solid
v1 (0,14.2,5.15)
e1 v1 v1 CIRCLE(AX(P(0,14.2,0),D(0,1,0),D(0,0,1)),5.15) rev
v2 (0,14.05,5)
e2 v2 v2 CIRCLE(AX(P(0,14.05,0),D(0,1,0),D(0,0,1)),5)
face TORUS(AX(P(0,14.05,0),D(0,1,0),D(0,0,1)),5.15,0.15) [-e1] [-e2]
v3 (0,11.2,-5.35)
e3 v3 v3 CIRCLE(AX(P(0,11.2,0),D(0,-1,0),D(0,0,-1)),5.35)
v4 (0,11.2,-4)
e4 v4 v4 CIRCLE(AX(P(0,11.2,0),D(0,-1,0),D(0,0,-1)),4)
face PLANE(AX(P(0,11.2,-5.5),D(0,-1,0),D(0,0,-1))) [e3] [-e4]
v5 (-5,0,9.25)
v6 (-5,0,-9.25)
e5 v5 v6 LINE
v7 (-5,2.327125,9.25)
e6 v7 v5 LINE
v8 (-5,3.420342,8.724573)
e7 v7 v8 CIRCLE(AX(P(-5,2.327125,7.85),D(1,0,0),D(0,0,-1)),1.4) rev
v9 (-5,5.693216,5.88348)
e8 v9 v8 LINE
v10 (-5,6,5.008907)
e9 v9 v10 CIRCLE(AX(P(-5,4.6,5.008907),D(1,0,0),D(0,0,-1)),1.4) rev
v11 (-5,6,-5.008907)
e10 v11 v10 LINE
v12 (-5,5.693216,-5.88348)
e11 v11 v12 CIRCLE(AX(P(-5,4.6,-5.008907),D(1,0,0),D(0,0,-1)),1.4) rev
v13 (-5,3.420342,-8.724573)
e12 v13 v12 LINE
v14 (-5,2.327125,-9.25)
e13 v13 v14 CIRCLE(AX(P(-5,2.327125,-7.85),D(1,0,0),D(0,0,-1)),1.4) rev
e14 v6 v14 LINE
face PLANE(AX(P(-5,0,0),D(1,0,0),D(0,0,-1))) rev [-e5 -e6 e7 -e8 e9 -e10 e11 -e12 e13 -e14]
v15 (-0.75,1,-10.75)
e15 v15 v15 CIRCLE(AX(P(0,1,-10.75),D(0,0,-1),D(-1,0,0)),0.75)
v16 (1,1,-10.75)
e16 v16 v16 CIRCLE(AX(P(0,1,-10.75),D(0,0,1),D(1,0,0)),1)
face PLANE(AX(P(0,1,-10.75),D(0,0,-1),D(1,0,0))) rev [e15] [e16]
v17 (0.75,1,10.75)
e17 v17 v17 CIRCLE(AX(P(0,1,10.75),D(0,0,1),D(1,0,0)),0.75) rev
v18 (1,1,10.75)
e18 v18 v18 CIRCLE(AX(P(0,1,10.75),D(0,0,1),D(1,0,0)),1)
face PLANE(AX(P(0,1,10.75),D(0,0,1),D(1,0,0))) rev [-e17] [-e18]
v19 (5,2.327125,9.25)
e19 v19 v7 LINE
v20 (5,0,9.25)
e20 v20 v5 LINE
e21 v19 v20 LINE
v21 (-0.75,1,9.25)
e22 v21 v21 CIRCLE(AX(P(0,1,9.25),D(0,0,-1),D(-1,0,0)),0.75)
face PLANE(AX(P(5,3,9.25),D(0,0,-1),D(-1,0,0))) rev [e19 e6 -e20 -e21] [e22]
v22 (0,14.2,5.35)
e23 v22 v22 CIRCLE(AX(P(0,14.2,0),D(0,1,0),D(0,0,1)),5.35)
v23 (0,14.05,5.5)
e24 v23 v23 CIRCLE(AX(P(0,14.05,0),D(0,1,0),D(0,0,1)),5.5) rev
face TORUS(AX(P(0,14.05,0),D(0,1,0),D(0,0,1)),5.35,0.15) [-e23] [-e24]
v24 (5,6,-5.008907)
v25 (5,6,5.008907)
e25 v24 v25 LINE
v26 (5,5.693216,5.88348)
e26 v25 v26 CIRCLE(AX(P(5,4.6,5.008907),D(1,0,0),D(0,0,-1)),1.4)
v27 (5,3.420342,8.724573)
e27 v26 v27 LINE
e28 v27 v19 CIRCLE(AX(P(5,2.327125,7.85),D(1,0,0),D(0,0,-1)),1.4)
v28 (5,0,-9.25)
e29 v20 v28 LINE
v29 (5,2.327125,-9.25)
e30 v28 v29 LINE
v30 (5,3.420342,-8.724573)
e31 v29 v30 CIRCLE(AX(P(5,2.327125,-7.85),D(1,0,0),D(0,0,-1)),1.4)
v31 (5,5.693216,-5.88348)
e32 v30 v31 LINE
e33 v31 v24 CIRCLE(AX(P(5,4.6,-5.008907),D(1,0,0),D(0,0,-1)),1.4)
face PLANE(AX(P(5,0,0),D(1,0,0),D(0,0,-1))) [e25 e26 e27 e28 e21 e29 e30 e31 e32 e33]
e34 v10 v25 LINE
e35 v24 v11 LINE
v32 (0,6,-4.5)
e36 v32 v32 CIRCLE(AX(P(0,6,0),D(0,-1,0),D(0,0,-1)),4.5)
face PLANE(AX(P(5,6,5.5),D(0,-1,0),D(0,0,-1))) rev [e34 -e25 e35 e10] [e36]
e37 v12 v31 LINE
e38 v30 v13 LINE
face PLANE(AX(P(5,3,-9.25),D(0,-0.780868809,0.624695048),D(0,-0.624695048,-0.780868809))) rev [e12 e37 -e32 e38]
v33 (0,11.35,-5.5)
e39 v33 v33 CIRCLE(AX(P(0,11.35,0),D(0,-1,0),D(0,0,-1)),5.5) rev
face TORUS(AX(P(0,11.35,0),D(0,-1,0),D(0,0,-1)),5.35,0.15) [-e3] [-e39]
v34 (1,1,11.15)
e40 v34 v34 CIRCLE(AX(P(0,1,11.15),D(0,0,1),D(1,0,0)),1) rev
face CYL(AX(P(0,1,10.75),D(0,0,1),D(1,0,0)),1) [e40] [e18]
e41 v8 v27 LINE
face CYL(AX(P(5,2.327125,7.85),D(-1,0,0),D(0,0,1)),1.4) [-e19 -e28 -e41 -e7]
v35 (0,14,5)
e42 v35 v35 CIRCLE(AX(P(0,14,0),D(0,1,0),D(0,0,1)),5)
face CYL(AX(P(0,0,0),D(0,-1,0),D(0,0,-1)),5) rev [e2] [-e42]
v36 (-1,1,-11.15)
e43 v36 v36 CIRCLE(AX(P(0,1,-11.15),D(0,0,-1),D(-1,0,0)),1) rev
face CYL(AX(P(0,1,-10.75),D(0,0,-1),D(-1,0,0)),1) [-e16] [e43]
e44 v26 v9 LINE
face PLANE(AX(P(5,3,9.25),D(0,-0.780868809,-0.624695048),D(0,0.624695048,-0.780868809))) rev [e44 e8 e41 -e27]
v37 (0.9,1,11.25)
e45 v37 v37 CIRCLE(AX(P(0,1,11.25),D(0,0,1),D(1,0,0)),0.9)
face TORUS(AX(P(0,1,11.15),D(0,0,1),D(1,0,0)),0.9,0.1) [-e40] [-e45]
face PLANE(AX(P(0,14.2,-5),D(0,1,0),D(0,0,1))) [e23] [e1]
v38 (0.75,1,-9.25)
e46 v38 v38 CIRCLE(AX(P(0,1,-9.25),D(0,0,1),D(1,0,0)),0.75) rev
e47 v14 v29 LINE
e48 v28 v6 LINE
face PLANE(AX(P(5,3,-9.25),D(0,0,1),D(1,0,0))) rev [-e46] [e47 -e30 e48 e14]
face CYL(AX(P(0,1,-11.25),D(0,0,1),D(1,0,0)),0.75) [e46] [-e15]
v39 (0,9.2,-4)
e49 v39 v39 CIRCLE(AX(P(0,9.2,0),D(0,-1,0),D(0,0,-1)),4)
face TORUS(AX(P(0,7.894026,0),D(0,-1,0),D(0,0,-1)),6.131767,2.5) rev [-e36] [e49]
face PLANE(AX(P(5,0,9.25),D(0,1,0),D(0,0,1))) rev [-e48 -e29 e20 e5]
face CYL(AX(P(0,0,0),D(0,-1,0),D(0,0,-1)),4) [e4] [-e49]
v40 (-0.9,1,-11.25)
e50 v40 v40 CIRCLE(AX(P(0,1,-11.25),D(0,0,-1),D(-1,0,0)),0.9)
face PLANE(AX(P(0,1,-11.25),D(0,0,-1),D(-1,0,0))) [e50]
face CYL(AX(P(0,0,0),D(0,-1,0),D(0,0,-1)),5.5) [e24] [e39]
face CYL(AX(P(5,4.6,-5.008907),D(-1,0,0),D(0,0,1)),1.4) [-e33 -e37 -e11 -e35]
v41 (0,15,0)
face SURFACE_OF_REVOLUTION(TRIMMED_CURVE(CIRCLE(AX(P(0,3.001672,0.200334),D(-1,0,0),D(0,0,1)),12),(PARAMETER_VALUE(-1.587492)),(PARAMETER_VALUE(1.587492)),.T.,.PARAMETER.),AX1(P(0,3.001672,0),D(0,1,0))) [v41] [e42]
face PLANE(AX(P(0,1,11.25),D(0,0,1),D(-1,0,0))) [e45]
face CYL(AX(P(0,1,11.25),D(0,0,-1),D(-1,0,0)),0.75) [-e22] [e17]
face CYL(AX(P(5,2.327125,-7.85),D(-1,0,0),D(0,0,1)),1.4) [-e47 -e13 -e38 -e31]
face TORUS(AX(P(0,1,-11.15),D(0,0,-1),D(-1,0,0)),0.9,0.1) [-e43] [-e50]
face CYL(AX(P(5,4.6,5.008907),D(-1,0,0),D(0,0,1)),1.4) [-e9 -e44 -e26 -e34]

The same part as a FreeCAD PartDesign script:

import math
import FreeCAD as App
import Part
import Sketcher
from FreeCAD import Vector
Q = App.Units.Quantity


def edges_at(feature, points):
    """Names of the edges that pass closest to the given points."""
    edges = feature.Shape.Edges
    near = lambda p: min(range(len(edges)), key=lambda i: edges[i].distToShape(Part.Vertex(*p))[0])
    return sorted({f"Edge{near(p) + 1}" for p in points})


def add_polygon(sketch, points):
    """Adds a closed chain of lines whose ends are joined by coincident constraints."""
    first, n = sketch.GeometryCount, len(points)
    for a, b in zip(points, points[1:] + points[:1]):
        sketch.addGeometry(Part.LineSegment(App.Vector(*a, 0), App.Vector(*b, 0)), False)
    for i in range(n):
        sketch.addConstraint(Sketcher.Constraint("Coincident", first + i, 2, first + (i + 1) % n, 1))

doc = App.newDocument("Part")
params = doc.addObject("Spreadsheet::Sheet", "Params")
for row, (alias, value) in enumerate([
    ("sketch1_width", "3 mm"),
    ("sketch1_height", "11 mm"),
    ("sketch1_height2", "18.5 mm"),
    ("pad1_length", "10 mm"),
    ("sketch2_radius", "2.5 mm"),
    ("sketch2_width", "8 mm"),
    ("sketch2_width2", "2 mm"),
    ("sketch2_width3", "3 mm"),
    ("sketch2_height", "5 mm"),
    ("revolution_angle", "360 deg"),
    ("sketch3_radius", "12 mm"),
    ("sketch3_width", "1 mm"),
    ("sketch3_height", "5 mm"),
    ("revolution2_angle", "360 deg"),
    ("fillet_radius", "0.15 mm"),
    ("fillet2_radius", "1.4 mm"),
    ("sketch4_diameter", "1.5 mm"),
    ("pad2_length", "2 mm"),
    ("sketch5_diameter", "2 mm"),
    ("pad3_length", "0.5 mm"),
    ("fillet3_radius", "0.1 mm"),
    ("fillet4_radius", "0.1 mm"),
], start=1):
    params.set(f"A{row}", alias)
    params.set(f"B{row}", "=" + value)
    params.setAlias(f"B{row}", alias)

body = doc.addObject("PartDesign::Body", "Body")

sketch1 = body.newObject("Sketcher::SketchObject", "Sketch")
sketch1.AttachmentSupport = (doc.getObject("YZ_Plane"), [""])
sketch1.MapMode = "FlatFace"
add_polygon(sketch1, [(3, -9.25), (6, -5.5), (6, 5.5), (3, 9.25), (0, 9.25), (0, -9.25)])
sketch1.addConstraint(Sketcher.Constraint("Vertical", 1))
sketch1.addConstraint(Sketcher.Constraint("Horizontal", 3))
sketch1.addConstraint(Sketcher.Constraint("Vertical", 4))
sketch1.addConstraint(Sketcher.Constraint("Horizontal", 5))
sketch1.addConstraint(Sketcher.Constraint("Symmetric", 3, 2, 4, 2, -1, 1))
sketch1.addConstraint(Sketcher.Constraint("Vertical", 2, 2, 5, 2))
sketch1.addConstraint(Sketcher.Constraint("Equal", 0, 2))
sketch1.addConstraint(Sketcher.Constraint("DistanceX", 3, 2, 3, 1, Q("3 mm")))
sketch1.addConstraint(Sketcher.Constraint("DistanceY", 1, 1, 1, 2, Q("11 mm")))
sketch1.addConstraint(Sketcher.Constraint("DistanceY", 4, 2, 4, 1, Q("18.5 mm")))
sketch1.addConstraint(Sketcher.Constraint("DistanceX", -1, 1, 0, 2, Q("6 mm")))
sketch1.setExpression("Constraints[13]", "Params.sketch1_width")
sketch1.setExpression("Constraints[14]", "Params.sketch1_height")
sketch1.setExpression("Constraints[15]", "Params.sketch1_height2")
pad1 = body.newObject("PartDesign::Pad", "Pad")
pad1.Profile = sketch1
pad1.setExpression("Length", "Params.pad1_length")
pad1.Midplane = True

sketch2 = body.newObject("Sketcher::SketchObject", "Sketch001")
sketch2.AttachmentSupport = (doc.getObject("YZ_Plane"), [""])
sketch2.MapMode = "FlatFace"
sketch2.addGeometry(Part.LineSegment(Vector(14, 0, 0), Vector(6, 0, 0)), False)
sketch2.addGeometry(Part.LineSegment(Vector(6, 0, 0), Vector(6, -4.5, 0)), False)
sketch2.addGeometry(Part.ArcOfCircle(Part.Circle(Vector(7.894026, -6.131767, 0), Vector(0, 0, 1), 2.5), math.radians(58.507326), math.radians(139.253992)), False)
sketch2.addGeometry(Part.LineSegment(Vector(9.2, -4, 0), Vector(11.2, -4, 0)), False)
sketch2.addGeometry(Part.LineSegment(Vector(11.2, -4, 0), Vector(11.2, -5.5, 0)), False)
sketch2.addGeometry(Part.LineSegment(Vector(11.2, -5.5, 0), Vector(14.2, -5.5, 0)), False)
sketch2.addGeometry(Part.LineSegment(Vector(14.2, -5.5, 0), Vector(14.2, -5, 0)), False)
sketch2.addGeometry(Part.LineSegment(Vector(14.2, -5, 0), Vector(14, -5, 0)), False)
sketch2.addGeometry(Part.LineSegment(Vector(14, -5, 0), Vector(14, 0, 0)), False)
sketch2.addConstraint(Sketcher.Constraint("Coincident", 0, 2, 1, 1))
sketch2.addConstraint(Sketcher.Constraint("Coincident", 1, 2, 2, 2))
sketch2.addConstraint(Sketcher.Constraint("Coincident", 2, 1, 3, 1))
sketch2.addConstraint(Sketcher.Constraint("Coincident", 3, 2, 4, 1))
sketch2.addConstraint(Sketcher.Constraint("Coincident", 4, 2, 5, 1))
sketch2.addConstraint(Sketcher.Constraint("Coincident", 5, 2, 6, 1))
sketch2.addConstraint(Sketcher.Constraint("Coincident", 6, 2, 7, 1))
sketch2.addConstraint(Sketcher.Constraint("Coincident", 7, 2, 8, 1))
sketch2.addConstraint(Sketcher.Constraint("Coincident", 8, 2, 0, 1))
sketch2.addConstraint(Sketcher.Constraint("Horizontal", 0))
sketch2.addConstraint(Sketcher.Constraint("Vertical", 1))
sketch2.addConstraint(Sketcher.Constraint("Horizontal", 3))
sketch2.addConstraint(Sketcher.Constraint("Vertical", 4))
sketch2.addConstraint(Sketcher.Constraint("Horizontal", 5))
sketch2.addConstraint(Sketcher.Constraint("Vertical", 6))
sketch2.addConstraint(Sketcher.Constraint("Horizontal", 7))
sketch2.addConstraint(Sketcher.Constraint("Vertical", 8))
sketch2.addConstraint(Sketcher.Constraint("PointOnObject", 0, 2, -1))
sketch2.addConstraint(Sketcher.Constraint("Radius", 2, Q("2.5 mm")))
sketch2.addConstraint(Sketcher.Constraint("DistanceX", 0, 2, 0, 1, Q("8 mm")))
sketch2.addConstraint(Sketcher.Constraint("DistanceX", 3, 1, 3, 2, Q("2 mm")))
sketch2.addConstraint(Sketcher.Constraint("DistanceX", 5, 1, 5, 2, Q("3 mm")))
sketch2.addConstraint(Sketcher.Constraint("DistanceY", 8, 1, 8, 2, Q("5 mm")))
sketch2.addConstraint(Sketcher.Constraint("DistanceX", 7, 2, 7, 1, Q("0.2 mm")))
sketch2.addConstraint(Sketcher.Constraint("DistanceY", 1, 2, 1, 1, Q("4.5 mm")))
sketch2.addConstraint(Sketcher.Constraint("DistanceY", 4, 2, 4, 1, Q("1.5 mm")))
sketch2.addConstraint(Sketcher.Constraint("DistanceY", 6, 1, 6, 2, Q("0.5 mm")))
sketch2.addConstraint(Sketcher.Constraint("DistanceX", -1, 1, 0, 2, Q("6 mm")))
sketch2.setExpression("Constraints[18]", "Params.sketch2_radius")
sketch2.setExpression("Constraints[19]", "Params.sketch2_width")
sketch2.setExpression("Constraints[20]", "Params.sketch2_width2")
sketch2.setExpression("Constraints[21]", "Params.sketch2_width3")
sketch2.setExpression("Constraints[22]", "Params.sketch2_height")
revolution = body.newObject("PartDesign::Revolution", "Revolution")
revolution.Profile = sketch2
revolution.ReferenceAxis = (sketch2, ["H_Axis"])
revolution.setExpression("Angle", "Params.revolution_angle")

sketch3 = body.newObject("Sketcher::SketchObject", "Sketch002")
sketch3.AttachmentSupport = (doc.getObject("YZ_Plane"), [""])
sketch3.MapMode = "FlatFace"
sketch3.addGeometry(Part.ArcOfCircle(Part.Circle(Vector(3.001672, 0.200334, 0), Vector(0, 0, 1), 12), math.radians(-0.956571), math.radians(23.576436)), False)
sketch3.addGeometry(Part.LineSegment(Vector(14, 5, 0), Vector(14, 0, 0)), False)
sketch3.addGeometry(Part.LineSegment(Vector(14, 0, 0), Vector(15, 0, 0)), False)
sketch3.addConstraint(Sketcher.Constraint("Coincident", 0, 2, 1, 1))
sketch3.addConstraint(Sketcher.Constraint("Coincident", 1, 2, 2, 1))
sketch3.addConstraint(Sketcher.Constraint("Coincident", 2, 2, 0, 1))
sketch3.addConstraint(Sketcher.Constraint("Vertical", 1))
sketch3.addConstraint(Sketcher.Constraint("Horizontal", 2))
sketch3.addConstraint(Sketcher.Constraint("PointOnObject", 1, 2, -1))
sketch3.addConstraint(Sketcher.Constraint("Radius", 0, Q("12 mm")))
sketch3.addConstraint(Sketcher.Constraint("DistanceX", 2, 1, 2, 2, Q("1 mm")))
sketch3.addConstraint(Sketcher.Constraint("DistanceY", 1, 2, 1, 1, Q("5 mm")))
sketch3.addConstraint(Sketcher.Constraint("DistanceX", -1, 1, 0, 2, Q("14 mm")))
sketch3.setExpression("Constraints[6]", "Params.sketch3_radius")
sketch3.setExpression("Constraints[7]", "Params.sketch3_width")
sketch3.setExpression("Constraints[8]", "Params.sketch3_height")
revolution2 = body.newObject("PartDesign::Revolution", "Revolution001")
revolution2.Profile = sketch3
revolution2.ReferenceAxis = (sketch3, ["H_Axis"])
revolution2.setExpression("Angle", "Params.revolution2_angle")
doc.recompute()

fillet = body.newObject("PartDesign::Fillet", "Fillet")
fillet.Base = (revolution2, edges_at(revolution2, [(0, 11.2, 5.5), (0, 14.2, 5.5), (0, 14.2, 5)]))
fillet.setExpression("Radius", "Params.fillet_radius")
doc.recompute()

fillet2 = body.newObject("PartDesign::Fillet", "Fillet001")
fillet2.Base = (fillet, edges_at(fillet, [
    (0, 3, 9.25),
    (0, 6, 5.5),
    (0, 6, -5.5),
    (0, 3, -9.25),
]))
fillet2.setExpression("Radius", "Params.fillet2_radius")

sketch4 = body.newObject("Sketcher::SketchObject", "Sketch003")
sketch4.AttachmentSupport = (doc.getObject("XY_Plane"), [""])
sketch4.MapMode = "FlatFace"
sketch4.AttachmentOffset = App.Placement(Vector(0, 0, -9.25), App.Rotation())
sketch4.addGeometry(Part.Circle(Vector(0, 1, 0), Vector(0, 0, 1), 0.75), False)
sketch4.addConstraint(Sketcher.Constraint("PointOnObject", 0, 3, -2))
sketch4.addConstraint(Sketcher.Constraint("Diameter", 0, Q("1.5 mm")))
sketch4.addConstraint(Sketcher.Constraint("DistanceY", -1, 1, 0, 3, Q("1 mm")))
sketch4.setExpression("Constraints[1]", "Params.sketch4_diameter")
pad2 = body.newObject("PartDesign::Pad", "Pad001")
pad2.Profile = sketch4
pad2.setExpression("Length", "Params.pad2_length")
pad2.Reversed = True
doc.recompute()

mirrored = body.newObject("PartDesign::Mirrored", "Mirrored")
mirrored.Originals = [pad2]
mirrored.MirrorPlane = (doc.getObject("XY_Plane"), [""])
body.Tip = mirrored

sketch5 = body.newObject("Sketcher::SketchObject", "Sketch004")
sketch5.AttachmentSupport = (doc.getObject("XY_Plane"), [""])
sketch5.MapMode = "FlatFace"
sketch5.AttachmentOffset = App.Placement(Vector(0, 0, 11.25), App.Rotation())
sketch5.addGeometry(Part.Circle(Vector(0, 1, 0), Vector(0, 0, 1), 1), False)
sketch5.addConstraint(Sketcher.Constraint("PointOnObject", 0, 3, -2))
sketch5.addConstraint(Sketcher.Constraint("Diameter", 0, Q("2 mm")))
sketch5.addConstraint(Sketcher.Constraint("DistanceY", -1, 1, 0, 3, Q("1 mm")))
sketch5.setExpression("Constraints[1]", "Params.sketch5_diameter")
pad3 = body.newObject("PartDesign::Pad", "Pad002")
pad3.Profile = sketch5
pad3.setExpression("Length", "Params.pad3_length")
pad3.Reversed = True
doc.recompute()

fillet3 = body.newObject("PartDesign::Fillet", "Fillet002")
fillet3.Base = (pad3, edges_at(pad3, [(-1, 1, 11.25)]))
fillet3.setExpression("Radius", "Params.fillet3_radius")
doc.recompute()

mirrored2 = body.newObject("PartDesign::Mirrored", "Mirrored001")
mirrored2.Originals = [pad3]
mirrored2.MirrorPlane = (doc.getObject("XY_Plane"), [""])
body.Tip = mirrored2
doc.recompute()

fillet4 = body.newObject("PartDesign::Fillet", "Fillet003")
fillet4.Base = (mirrored2, edges_at(mirrored2, [(-1, 1, -11.25)]))
fillet4.setExpression("Radius", "Params.fillet4_radius")

doc.recompute()
